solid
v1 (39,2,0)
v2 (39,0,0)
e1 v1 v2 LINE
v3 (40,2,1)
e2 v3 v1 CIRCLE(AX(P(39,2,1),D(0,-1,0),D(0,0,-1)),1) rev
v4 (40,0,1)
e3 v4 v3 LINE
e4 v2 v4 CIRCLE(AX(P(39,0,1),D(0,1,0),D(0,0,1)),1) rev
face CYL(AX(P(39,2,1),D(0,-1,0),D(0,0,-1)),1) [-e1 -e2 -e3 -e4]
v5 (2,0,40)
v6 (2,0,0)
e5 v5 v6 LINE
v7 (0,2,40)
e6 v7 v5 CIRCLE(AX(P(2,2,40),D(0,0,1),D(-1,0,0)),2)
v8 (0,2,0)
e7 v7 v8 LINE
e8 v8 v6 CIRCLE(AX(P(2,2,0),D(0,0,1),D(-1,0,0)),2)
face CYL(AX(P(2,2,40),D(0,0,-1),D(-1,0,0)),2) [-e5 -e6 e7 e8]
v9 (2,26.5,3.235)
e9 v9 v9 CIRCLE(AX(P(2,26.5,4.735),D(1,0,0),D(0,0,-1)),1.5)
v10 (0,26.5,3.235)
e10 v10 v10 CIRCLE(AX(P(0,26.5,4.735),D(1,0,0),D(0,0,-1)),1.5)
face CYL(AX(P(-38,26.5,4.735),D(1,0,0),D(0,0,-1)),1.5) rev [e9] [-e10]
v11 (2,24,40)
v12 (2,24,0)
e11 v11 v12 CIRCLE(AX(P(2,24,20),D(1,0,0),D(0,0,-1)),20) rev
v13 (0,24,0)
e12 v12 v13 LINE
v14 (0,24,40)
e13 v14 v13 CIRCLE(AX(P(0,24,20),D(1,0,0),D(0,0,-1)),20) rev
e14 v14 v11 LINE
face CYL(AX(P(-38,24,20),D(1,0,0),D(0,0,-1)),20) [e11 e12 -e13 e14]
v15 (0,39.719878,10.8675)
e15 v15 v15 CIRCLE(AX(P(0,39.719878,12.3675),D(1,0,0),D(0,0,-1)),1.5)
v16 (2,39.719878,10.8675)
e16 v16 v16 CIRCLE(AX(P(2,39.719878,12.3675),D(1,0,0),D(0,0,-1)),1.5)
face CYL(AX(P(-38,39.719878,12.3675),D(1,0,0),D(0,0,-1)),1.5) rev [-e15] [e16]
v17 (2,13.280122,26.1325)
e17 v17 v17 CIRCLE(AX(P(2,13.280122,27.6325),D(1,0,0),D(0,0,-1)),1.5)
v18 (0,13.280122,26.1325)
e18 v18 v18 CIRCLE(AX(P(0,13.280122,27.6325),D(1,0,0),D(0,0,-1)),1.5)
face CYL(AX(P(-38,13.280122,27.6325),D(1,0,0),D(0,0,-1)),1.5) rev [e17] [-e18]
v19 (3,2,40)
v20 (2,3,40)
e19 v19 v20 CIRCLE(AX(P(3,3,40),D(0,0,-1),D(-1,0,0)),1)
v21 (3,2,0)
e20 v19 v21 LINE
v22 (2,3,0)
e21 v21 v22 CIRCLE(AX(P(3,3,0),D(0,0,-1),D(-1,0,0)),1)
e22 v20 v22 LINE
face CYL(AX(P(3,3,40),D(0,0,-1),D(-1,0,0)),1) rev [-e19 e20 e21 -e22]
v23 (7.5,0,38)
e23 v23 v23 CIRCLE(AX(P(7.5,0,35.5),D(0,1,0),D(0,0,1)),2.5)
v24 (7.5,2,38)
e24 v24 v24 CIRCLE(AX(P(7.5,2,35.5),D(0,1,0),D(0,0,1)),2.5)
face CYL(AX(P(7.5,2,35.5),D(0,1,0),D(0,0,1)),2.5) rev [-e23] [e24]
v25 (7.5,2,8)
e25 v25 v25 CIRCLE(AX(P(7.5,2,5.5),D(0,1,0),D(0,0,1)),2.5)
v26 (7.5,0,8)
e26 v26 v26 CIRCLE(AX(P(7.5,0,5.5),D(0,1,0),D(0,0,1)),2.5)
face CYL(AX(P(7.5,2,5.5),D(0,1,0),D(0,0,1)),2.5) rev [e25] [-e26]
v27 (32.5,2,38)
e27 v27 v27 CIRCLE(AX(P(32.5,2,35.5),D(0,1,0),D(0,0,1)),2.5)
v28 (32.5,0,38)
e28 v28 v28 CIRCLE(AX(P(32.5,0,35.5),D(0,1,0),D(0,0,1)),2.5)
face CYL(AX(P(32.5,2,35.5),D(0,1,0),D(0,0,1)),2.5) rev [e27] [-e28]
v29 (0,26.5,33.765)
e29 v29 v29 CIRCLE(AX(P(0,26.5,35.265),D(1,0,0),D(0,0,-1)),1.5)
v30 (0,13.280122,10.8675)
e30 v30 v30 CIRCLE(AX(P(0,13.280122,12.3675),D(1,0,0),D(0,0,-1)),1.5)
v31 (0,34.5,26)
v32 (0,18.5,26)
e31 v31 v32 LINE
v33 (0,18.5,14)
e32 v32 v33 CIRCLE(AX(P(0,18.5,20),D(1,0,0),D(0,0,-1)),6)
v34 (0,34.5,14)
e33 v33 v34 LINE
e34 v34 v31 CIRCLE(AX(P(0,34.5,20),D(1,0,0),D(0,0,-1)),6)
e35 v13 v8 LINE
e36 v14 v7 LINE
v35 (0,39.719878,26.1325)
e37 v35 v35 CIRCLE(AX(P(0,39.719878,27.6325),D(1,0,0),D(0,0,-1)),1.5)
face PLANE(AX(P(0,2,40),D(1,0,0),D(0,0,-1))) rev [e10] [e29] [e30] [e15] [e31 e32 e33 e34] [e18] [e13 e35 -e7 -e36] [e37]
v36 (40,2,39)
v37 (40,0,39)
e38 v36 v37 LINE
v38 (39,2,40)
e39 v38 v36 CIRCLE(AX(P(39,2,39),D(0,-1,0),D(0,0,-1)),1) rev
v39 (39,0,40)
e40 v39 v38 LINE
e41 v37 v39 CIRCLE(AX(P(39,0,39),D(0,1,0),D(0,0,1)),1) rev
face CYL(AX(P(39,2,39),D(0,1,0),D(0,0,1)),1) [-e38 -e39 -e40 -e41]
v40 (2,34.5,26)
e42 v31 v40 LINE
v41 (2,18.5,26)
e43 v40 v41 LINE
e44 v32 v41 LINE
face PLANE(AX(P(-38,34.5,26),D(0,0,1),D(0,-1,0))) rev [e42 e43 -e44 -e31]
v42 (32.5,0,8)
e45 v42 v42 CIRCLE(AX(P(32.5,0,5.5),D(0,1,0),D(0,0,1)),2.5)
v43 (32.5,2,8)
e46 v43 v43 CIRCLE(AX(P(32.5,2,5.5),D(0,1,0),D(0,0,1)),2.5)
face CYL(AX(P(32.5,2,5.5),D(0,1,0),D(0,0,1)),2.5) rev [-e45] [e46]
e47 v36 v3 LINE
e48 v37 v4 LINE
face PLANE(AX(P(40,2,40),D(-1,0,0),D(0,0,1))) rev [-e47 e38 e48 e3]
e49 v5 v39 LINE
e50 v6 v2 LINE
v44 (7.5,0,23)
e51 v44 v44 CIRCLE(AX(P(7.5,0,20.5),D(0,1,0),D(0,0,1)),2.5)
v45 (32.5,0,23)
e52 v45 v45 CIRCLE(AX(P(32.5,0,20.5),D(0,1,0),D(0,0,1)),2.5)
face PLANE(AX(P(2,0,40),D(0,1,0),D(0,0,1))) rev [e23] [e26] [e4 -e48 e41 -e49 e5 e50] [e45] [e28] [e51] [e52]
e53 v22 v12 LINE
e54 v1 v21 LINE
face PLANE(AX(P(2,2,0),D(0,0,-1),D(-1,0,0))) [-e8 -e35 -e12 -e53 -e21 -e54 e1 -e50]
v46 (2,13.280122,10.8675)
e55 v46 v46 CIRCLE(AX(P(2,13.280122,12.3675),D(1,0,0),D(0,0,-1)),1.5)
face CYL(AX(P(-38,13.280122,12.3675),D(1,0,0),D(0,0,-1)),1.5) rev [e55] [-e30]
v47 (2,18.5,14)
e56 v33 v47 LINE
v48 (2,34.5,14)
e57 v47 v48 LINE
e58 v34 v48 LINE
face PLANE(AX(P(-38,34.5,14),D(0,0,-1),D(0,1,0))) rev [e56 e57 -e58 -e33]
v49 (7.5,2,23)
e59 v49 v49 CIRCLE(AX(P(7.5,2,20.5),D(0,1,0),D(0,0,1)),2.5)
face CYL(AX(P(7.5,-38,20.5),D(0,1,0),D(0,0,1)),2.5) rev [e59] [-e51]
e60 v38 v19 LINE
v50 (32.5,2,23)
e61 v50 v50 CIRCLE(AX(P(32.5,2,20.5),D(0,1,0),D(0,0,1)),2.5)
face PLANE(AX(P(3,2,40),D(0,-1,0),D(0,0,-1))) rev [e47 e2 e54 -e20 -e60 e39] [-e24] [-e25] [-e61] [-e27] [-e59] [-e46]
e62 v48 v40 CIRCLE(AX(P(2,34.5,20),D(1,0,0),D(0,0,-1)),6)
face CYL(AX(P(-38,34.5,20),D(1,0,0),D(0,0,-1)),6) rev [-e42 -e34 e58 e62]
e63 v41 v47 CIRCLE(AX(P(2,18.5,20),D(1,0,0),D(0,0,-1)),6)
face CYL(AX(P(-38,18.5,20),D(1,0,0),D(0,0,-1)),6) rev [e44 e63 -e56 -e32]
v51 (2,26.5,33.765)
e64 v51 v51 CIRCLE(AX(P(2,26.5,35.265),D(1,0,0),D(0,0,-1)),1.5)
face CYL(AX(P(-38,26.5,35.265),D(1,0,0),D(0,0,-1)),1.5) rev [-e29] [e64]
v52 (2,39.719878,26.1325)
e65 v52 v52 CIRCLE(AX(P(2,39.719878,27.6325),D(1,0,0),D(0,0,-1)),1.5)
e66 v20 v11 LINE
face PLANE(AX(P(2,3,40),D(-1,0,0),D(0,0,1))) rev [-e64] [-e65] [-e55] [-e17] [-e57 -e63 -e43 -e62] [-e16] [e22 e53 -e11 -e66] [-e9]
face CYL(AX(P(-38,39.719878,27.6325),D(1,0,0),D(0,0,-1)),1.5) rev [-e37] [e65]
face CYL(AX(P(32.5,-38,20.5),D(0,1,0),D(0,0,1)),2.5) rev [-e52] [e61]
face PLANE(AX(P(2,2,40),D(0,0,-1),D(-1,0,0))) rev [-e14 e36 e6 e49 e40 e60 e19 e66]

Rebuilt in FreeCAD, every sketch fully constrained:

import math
import FreeCAD as App
import Part
import Sketcher

V = App.Vector
Q = App.Units.Quantity


def edges_at(feature, points):
    """Names of the edges that pass closest to the given points."""
    edges = feature.Shape.Edges
    near = lambda p: min(range(len(edges)), key=lambda i: edges[i].distToShape(Part.Vertex(*p))[0])
    return sorted({f"Edge{near(p) + 1}" for p in points})

doc = App.newDocument("Part")
body = doc.addObject("PartDesign::Body", "Body")

sketch1 = body.newObject("Sketcher::SketchObject", "Sketch")
sketch1.AttachmentSupport = (doc.getObject("XY_Plane"), [""])
sketch1.MapMode = "FlatFace"
sketch1.addGeometry([
    Part.LineSegment(V(2, 0, 0), V(40, 0, 0)),
    Part.LineSegment(V(40, 0, 0), V(40, 2, 0)),
    Part.LineSegment(V(40, 2, 0), V(3, 2, 0)),
    Part.ArcOfCircle(Part.Circle(V(3, 3, 0), V(0, 0, 1), 1), math.radians(-180), math.radians(-90)),
    Part.LineSegment(V(2, 3, 0), V(2, 45, 0)),
    Part.LineSegment(V(2, 45, 0), V(0, 45, 0)),
    Part.LineSegment(V(0, 45, 0), V(0, 2, 0)),
    Part.ArcOfCircle(Part.Circle(V(2, 2, 0), V(0, 0, 1), 2), math.radians(-180), math.radians(-90)),
], False)
sketch1.addConstraint([
    Sketcher.Constraint("Coincident", 0, 2, 1, 1),
    Sketcher.Constraint("Coincident", 1, 2, 2, 1),
    Sketcher.Constraint("Tangent", 2, 2, 3, 2),
    Sketcher.Constraint("Tangent", 3, 1, 4, 1),
    Sketcher.Constraint("Coincident", 4, 2, 5, 1),
    Sketcher.Constraint("Coincident", 5, 2, 6, 1),
    Sketcher.Constraint("Tangent", 6, 2, 7, 1),
    Sketcher.Constraint("Tangent", 7, 2, 0, 1),
    Sketcher.Constraint("Horizontal", 0),
    Sketcher.Constraint("Vertical", 1),
    Sketcher.Constraint("Horizontal", 2),
    Sketcher.Constraint("Vertical", 4),
    Sketcher.Constraint("Horizontal", 5),
    Sketcher.Constraint("Vertical", 6),
    Sketcher.Constraint("PointOnObject", 0, 2, -1),
    Sketcher.Constraint("PointOnObject", 5, 2, -2),
    Sketcher.Constraint("Horizontal", 7, 3, 1, 2),
    Sketcher.Constraint("Vertical", 7, 3, 3, 1),
    Sketcher.Constraint("Radius", 3, Q("1 mm")),
    Sketcher.Constraint("Radius", 7, Q("2 mm")),
    Sketcher.Constraint("DistanceX", 0, 1, 0, 2, Q("38 mm")),
    Sketcher.Constraint("DistanceY", 4, 1, 4, 2, Q("42 mm")),
])
pad1 = body.newObject("PartDesign::Pad", "Pad")
pad1.Profile = sketch1
pad1.Length = 40

sketch2 = body.newObject("Sketcher::SketchObject", "Sketch001")
sketch2.AttachmentSupport = (doc.getObject("XZ_Plane"), [""])
sketch2.MapMode = "FlatFace"
sketch2.AttachmentOffset = App.Placement(V(0, 0, -2), App.Rotation())
sketch2.addGeometry([
    Part.Circle(V(32.5, 35.5, 0), V(0, 0, 1), 2.5),
    Part.Circle(V(32.5, 5.5, 0), V(0, 0, 1), 2.5),
    Part.Circle(V(7.5, 5.5, 0), V(0, 0, 1), 2.5),
    Part.Circle(V(7.5, 35.5, 0), V(0, 0, 1), 2.5),
], False)
sketch2.addConstraint([
    Sketcher.Constraint("Equal", 0, 1),
    Sketcher.Constraint("Equal", 1, 2),
    Sketcher.Constraint("Equal", 2, 3),
    Sketcher.Constraint("Horizontal", 1, 3, 2, 3),
    Sketcher.Constraint("Horizontal", 0, 3, 3, 3),
    Sketcher.Constraint("Vertical", 0, 3, 1, 3),
    Sketcher.Constraint("Vertical", 2, 3, 3, 3),
    Sketcher.Constraint("Diameter", 0, Q("5 mm")),
    Sketcher.Constraint("DistanceY", 1, 3, 0, 3, Q("30 mm")),
    Sketcher.Constraint("DistanceX", 2, 3, 1, 3, Q("25 mm")),
    Sketcher.Constraint("DistanceX", -1, 1, 0, 3, Q("32.5 mm")),
    Sketcher.Constraint("DistanceY", -1, 1, 0, 3, Q("35.5 mm")),
])
doc.recompute()
hole = body.newObject("PartDesign::Hole", "Hole")
hole.Profile = sketch2
hole.ThreadType = "None"
hole.Diameter = 5
hole.DepthType = "ThroughAll"
hole.Reversed = True

sketch3 = body.newObject("Sketcher::SketchObject", "Sketch002")
sketch3.AttachmentSupport = (doc.getObject("YZ_Plane"), [""])
sketch3.MapMode = "FlatFace"
sketch3.AttachmentOffset = App.Placement(V(0, 0, 2), App.Rotation())
sketch3.addGeometry([
    Part.LineSegment(V(45, 40, 0), V(24, 40, 0)),
    Part.ArcOfCircle(Part.Circle(V(24, 20, 0), V(0, 0, 1), 20), math.radians(-90), math.radians(90)),
    Part.LineSegment(V(24, 0, 0), V(45, 0, 0)),
    Part.LineSegment(V(45, 0, 0), V(45, 40, 0)),
], False)
sketch3.addConstraint([
    Sketcher.Constraint("Tangent", 0, 2, 1, 2),
    Sketcher.Constraint("Tangent", 1, 1, 2, 1),
    Sketcher.Constraint("Coincident", 2, 2, 3, 1),
    Sketcher.Constraint("Coincident", 3, 2, 0, 1),
    Sketcher.Constraint("Horizontal", 0),
    Sketcher.Constraint("Horizontal", 2),
    Sketcher.Constraint("Vertical", 3),
    Sketcher.Constraint("PointOnObject", 1, 1, -1),
    Sketcher.Constraint("Radius", 1, Q("20 mm")),
    Sketcher.Constraint("DistanceX", 0, 2, 0, 1, Q("21 mm")),
    Sketcher.Constraint("DistanceX", -1, 1, 1, 3, Q("24 mm")),
])
pocket1 = body.newObject("PartDesign::Pocket", "Pocket")
pocket1.Profile = sketch3
pocket1.Length = 40

sketch4 = body.newObject("Sketcher::SketchObject", "Sketch003")
sketch4.AttachmentSupport = (doc.getObject("YZ_Plane"), [""])
sketch4.MapMode = "FlatFace"
sketch4.AttachmentOffset = App.Placement(V(0, 0, 2), App.Rotation())
sketch4.addGeometry([
    Part.LineSegment(V(18, 14, 0), V(34, 14, 0)),
    Part.ArcOfCircle(Part.Circle(V(34, 20, 0), V(0, 0, 1), 6), math.radians(-90), math.radians(90)),
    Part.LineSegment(V(34, 26, 0), V(18, 26, 0)),
    Part.ArcOfCircle(Part.Circle(V(18, 20, 0), V(0, 0, 1), 6), math.radians(90), math.radians(270)),
], False)
sketch4.addConstraint([
    Sketcher.Constraint("Tangent", 0, 2, 1, 1),
    Sketcher.Constraint("Tangent", 1, 2, 2, 1),
    Sketcher.Constraint("Tangent", 2, 2, 3, 1),
    Sketcher.Constraint("Tangent", 3, 2, 0, 1),
    Sketcher.Constraint("Horizontal", 0),
    Sketcher.Constraint("Horizontal", 2),
    Sketcher.Constraint("Radius", 1, Q("6 mm")),
    Sketcher.Constraint("DistanceX", 0, 1, 0, 2, Q("16 mm")),
    Sketcher.Constraint("DistanceY", -1, 1, 1, 3, Q("20 mm")),
    Sketcher.Constraint("DistanceX", -1, 1, 1, 3, Q("34.5 mm")),
])
pocket2 = body.newObject("PartDesign::Pocket", "Pocket001")
pocket2.Profile = sketch4
pocket2.Length = 40

sketch5 = body.newObject("Sketcher::SketchObject", "Sketch004")
sketch5.AttachmentSupport = (doc.getObject("YZ_Plane"), [""])
sketch5.MapMode = "FlatFace"
sketch5.AttachmentOffset = App.Placement(V(0, 0, 2), App.Rotation())
sketch5.addGeometry([
    Part.Circle(V(26.5, 4.7, 0), V(0, 0, 1), 1.5),
    Part.Circle(V(26.5, 35.3, 0), V(0, 0, 1), 1.5),
    Part.Circle(V(13.3, 27.6, 0), V(0, 0, 1), 1.5),
    Part.Circle(V(13.3, 12.4, 0), V(0, 0, 1), 1.5),
    Part.Circle(V(39.7, 27.6, 0), V(0, 0, 1), 1.5),
    Part.Circle(V(39.7, 12.4, 0), V(0, 0, 1), 1.5),
], False)
sketch5.addConstraint([
    Sketcher.Constraint("Equal", 0, 1),
    Sketcher.Constraint("Equal", 1, 2),
    Sketcher.Constraint("Equal", 2, 3),
    Sketcher.Constraint("Equal", 3, 4),
    Sketcher.Constraint("Equal", 4, 5),
    Sketcher.Constraint("Horizontal", 2, 3, 4, 3),
    Sketcher.Constraint("Horizontal", 3, 3, 5, 3),
    Sketcher.Constraint("Vertical", 0, 3, 1, 3),
    Sketcher.Constraint("Vertical", 2, 3, 3, 3),
    Sketcher.Constraint("Vertical", 4, 3, 5, 3),
    Sketcher.Constraint("Diameter", 0, Q("3 mm")),
    Sketcher.Constraint("DistanceX", -1, 1, 0, 3, Q("26.5 mm")),
    Sketcher.Constraint("DistanceY", 0, 3, 1, 3, Q("30.53 mm")),
    Sketcher.Constraint("DistanceY", -1, 1, 0, 3, Q("4.735 mm")),
    Sketcher.Constraint("DistanceY", 3, 3, 2, 3, Q("15.265 mm")),
    Sketcher.Constraint("DistanceY", -1, 1, 2, 3, Q("27.6325 mm")),
    Sketcher.Constraint("DistanceX", -1, 1, 2, 3, Q("13.280122 mm")),
    Sketcher.Constraint("DistanceX", -1, 1, 4, 3, Q("39.719878 mm")),
])
pocket3 = body.newObject("PartDesign::Pocket", "Pocket002")
pocket3.Profile = sketch5
pocket3.Length = 40
doc.recompute()

fillet = body.newObject("PartDesign::Fillet", "Fillet")
fillet.Base = (pocket3, edges_at(pocket3, [(40, 1, 0), (40, 1, 40)]))
fillet.Radius = 1

sketch6 = body.newObject("Sketcher::SketchObject", "Sketch005")
sketch6.AttachmentSupport = (doc.getObject("XZ_Plane"), [""])
sketch6.MapMode = "FlatFace"
sketch6.AttachmentOffset = App.Placement(V(0, 0, -2), App.Rotation())
sketch6.addGeometry([
    Part.Circle(V(7.5, 20.5, 0), V(0, 0, 1), 2.5),
    Part.Circle(V(32.5, 20.5, 0), V(0, 0, 1), 2.5),
], False)
sketch6.addConstraint([
    Sketcher.Constraint("Equal", 0, 1),
    Sketcher.Constraint("Horizontal", 0, 3, 1, 3),
    Sketcher.Constraint("Diameter", 0, Q("5 mm")),
    Sketcher.Constraint("DistanceX", 0, 3, 1, 3, Q("25 mm")),
    Sketcher.Constraint("DistanceX", -1, 1, 0, 3, Q("7.5 mm")),
    Sketcher.Constraint("DistanceY", -1, 1, 0, 3, Q("20.5 mm")),
])
pocket4 = body.newObject("PartDesign::Pocket", "Pocket003")
pocket4.Profile = sketch6
pocket4.Length = 40
pocket4.Reversed = True

doc.recompute()
